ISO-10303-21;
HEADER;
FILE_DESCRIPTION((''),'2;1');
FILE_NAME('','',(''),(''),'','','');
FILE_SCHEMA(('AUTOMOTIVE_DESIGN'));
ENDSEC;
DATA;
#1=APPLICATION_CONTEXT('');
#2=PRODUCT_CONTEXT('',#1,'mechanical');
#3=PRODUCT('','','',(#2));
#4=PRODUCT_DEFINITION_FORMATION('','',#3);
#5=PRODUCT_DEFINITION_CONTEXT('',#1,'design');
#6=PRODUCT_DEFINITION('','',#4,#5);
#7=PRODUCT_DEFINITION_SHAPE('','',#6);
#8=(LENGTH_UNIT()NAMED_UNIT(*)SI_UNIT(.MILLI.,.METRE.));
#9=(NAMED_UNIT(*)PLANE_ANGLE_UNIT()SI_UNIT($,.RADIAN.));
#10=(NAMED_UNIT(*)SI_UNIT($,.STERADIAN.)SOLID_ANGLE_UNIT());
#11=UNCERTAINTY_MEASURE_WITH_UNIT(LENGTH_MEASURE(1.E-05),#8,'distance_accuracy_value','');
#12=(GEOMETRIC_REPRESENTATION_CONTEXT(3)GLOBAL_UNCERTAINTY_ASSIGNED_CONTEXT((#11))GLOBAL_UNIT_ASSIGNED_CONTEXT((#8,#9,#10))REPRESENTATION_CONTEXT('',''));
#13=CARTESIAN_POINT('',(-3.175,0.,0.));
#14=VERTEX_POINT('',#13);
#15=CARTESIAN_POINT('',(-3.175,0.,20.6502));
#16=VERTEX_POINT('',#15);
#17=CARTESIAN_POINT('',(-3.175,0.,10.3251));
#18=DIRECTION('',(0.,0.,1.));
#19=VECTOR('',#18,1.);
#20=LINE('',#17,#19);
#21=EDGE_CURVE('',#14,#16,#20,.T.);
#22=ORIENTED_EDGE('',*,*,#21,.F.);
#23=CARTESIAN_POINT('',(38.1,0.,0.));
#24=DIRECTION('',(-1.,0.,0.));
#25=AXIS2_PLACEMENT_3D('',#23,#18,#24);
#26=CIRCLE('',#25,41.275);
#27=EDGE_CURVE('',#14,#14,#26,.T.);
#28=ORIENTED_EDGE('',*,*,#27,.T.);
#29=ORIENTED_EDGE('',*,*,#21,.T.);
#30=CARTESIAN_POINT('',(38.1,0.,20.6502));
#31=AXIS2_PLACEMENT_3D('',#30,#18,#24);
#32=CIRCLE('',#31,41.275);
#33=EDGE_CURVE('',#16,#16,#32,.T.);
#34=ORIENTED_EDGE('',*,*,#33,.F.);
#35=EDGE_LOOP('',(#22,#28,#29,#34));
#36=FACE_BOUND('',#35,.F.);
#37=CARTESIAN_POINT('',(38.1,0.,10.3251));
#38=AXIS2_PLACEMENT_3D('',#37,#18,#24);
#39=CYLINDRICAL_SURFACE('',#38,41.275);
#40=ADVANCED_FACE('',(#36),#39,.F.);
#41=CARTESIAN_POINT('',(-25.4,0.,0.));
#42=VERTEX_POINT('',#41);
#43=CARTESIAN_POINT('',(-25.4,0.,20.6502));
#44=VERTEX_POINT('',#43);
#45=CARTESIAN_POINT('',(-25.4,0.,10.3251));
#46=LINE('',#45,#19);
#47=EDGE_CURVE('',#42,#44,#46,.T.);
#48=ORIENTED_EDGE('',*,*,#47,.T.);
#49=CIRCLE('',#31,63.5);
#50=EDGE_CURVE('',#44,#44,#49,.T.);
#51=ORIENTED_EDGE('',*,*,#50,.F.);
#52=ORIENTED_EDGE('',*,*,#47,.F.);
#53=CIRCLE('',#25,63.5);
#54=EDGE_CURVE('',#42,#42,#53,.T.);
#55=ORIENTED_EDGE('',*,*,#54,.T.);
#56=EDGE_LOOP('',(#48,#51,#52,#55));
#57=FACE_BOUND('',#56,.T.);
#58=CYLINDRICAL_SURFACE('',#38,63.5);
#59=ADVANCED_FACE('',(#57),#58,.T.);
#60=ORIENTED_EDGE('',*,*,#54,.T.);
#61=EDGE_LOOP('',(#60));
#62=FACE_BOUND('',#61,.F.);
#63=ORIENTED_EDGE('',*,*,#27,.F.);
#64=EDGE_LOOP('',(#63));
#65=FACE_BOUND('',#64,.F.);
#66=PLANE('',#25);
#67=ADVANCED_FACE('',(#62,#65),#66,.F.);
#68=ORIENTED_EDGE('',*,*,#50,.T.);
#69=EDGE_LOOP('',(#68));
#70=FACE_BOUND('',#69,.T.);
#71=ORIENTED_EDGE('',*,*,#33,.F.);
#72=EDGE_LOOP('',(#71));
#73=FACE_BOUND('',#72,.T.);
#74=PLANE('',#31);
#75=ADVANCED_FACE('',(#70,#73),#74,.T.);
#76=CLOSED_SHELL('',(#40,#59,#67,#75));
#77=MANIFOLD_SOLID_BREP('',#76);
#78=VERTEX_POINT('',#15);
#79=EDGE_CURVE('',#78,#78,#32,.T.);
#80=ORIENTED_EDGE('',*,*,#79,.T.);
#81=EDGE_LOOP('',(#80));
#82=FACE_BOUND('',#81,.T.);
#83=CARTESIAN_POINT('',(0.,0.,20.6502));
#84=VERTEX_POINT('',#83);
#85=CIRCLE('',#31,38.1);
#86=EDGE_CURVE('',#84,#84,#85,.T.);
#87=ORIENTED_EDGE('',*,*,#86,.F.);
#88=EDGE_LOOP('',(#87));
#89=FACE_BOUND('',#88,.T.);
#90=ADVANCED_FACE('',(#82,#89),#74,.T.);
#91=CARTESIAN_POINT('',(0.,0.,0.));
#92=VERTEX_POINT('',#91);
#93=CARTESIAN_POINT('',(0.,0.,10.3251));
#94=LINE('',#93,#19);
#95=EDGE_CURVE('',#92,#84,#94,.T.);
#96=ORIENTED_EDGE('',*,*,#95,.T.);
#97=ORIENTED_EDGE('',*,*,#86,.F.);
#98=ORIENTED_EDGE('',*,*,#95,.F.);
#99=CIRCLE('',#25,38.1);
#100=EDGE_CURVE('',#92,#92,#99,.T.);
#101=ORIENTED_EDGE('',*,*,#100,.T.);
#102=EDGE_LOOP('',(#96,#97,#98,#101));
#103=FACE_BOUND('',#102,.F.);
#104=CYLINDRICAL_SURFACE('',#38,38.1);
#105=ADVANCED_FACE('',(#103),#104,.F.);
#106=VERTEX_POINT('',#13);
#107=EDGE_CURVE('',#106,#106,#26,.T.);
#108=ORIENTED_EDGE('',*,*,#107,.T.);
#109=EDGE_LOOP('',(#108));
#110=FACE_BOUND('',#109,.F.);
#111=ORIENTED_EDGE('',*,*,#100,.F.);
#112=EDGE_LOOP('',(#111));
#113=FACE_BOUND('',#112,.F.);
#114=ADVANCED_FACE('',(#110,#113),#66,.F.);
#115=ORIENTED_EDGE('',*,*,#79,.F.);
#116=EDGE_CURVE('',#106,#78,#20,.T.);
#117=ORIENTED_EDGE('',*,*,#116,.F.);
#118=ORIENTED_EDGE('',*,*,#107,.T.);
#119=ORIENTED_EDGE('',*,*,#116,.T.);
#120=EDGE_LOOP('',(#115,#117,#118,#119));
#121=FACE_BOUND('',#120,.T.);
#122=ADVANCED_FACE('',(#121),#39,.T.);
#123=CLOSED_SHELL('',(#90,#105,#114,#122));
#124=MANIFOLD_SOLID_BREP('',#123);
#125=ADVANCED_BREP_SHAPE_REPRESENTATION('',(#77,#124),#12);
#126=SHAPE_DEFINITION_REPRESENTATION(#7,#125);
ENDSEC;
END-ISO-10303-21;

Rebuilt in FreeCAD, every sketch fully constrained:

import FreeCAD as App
import Part
import Sketcher
Q = App.Units.Quantity

doc = App.newDocument("Part")
body = doc.addObject("PartDesign::Body", "Body")

# Sketch on XZ plane
sketch1 = body.newObject("Sketcher::SketchObject", "Sketch")
sketch1.AttachmentSupport = (doc.getObject("XZ_Plane"), [""])
sketch1.MapMode = "FlatFace"
sketch1.addGeometry(Part.LineSegment(App.Vector(-3.175, 20.6502, 0), App.Vector(-3.175, 0, 0)), False)
sketch1.addGeometry(Part.LineSegment(App.Vector(-3.175, 0, 0), App.Vector(0, 0, 0)), False)
sketch1.addGeometry(Part.LineSegment(App.Vector(0, 0, 0), App.Vector(0, 20.6502, 0)), False)
sketch1.addGeometry(Part.LineSegment(App.Vector(0, 20.6502, 0), App.Vector(-3.175, 20.6502, 0)), False)
sketch1.addGeometry(Part.LineSegment(App.Vector(38.1, 0, 0), App.Vector(38.1, 20.6502, 0)), True)  # axis
sketch1.addConstraint(Sketcher.Constraint("Coincident", 0, 2, 1, 1))
sketch1.addConstraint(Sketcher.Constraint("Coincident", 1, 2, 2, 1))
sketch1.addConstraint(Sketcher.Constraint("Coincident", 2, 2, 3, 1))
sketch1.addConstraint(Sketcher.Constraint("Coincident", 3, 2, 0, 1))
sketch1.addConstraint(Sketcher.Constraint("Vertical", 0))
sketch1.addConstraint(Sketcher.Constraint("Horizontal", 1))
sketch1.addConstraint(Sketcher.Constraint("Vertical", 2))
sketch1.addConstraint(Sketcher.Constraint("Horizontal", 3))
sketch1.addConstraint(Sketcher.Constraint("Vertical", 4))
sketch1.addConstraint(Sketcher.Constraint("Coincident", 1, 2, -1, 1))
sketch1.addConstraint(Sketcher.Constraint("PointOnObject", 4, 1, -1))
sketch1.addConstraint(Sketcher.Constraint("Horizontal", 3, 2, 4, 2))
sketch1.addConstraint(Sketcher.Constraint("DistanceX", -1, 1, 4, 1, Q("1.5 in")))
sketch1.addConstraint(Sketcher.Constraint("DistanceX", 1, 1, 1, 2, Q("0.125 in")))
sketch1.addConstraint(Sketcher.Constraint("DistanceY", 0, 2, 0, 1, Q("0.813 in")))
revolution = body.newObject("PartDesign::Revolution", "Revolution")
revolution.Profile = sketch1
revolution.ReferenceAxis = (sketch1, ["Axis0"])
revolution.Angle = 360
body2 = doc.addObject("PartDesign::Body", "Body001")

# Sketch on XZ plane
sketch2 = body2.newObject("Sketcher::SketchObject", "Sketch001")
sketch2.AttachmentSupport = (doc.getObject("XZ_Plane001"), [""])
sketch2.MapMode = "FlatFace"
sketch2.addGeometry(Part.LineSegment(App.Vector(-25.4, 20.6502, 0), App.Vector(-25.4, 0, 0)), False)
sketch2.addGeometry(Part.LineSegment(App.Vector(-25.4, 0, 0), App.Vector(-3.175, 0, 0)), False)
sketch2.addGeometry(Part.LineSegment(App.Vector(-3.175, 0, 0), App.Vector(-3.175, 20.6502, 0)), False)
sketch2.addGeometry(Part.LineSegment(App.Vector(-3.175, 20.6502, 0), App.Vector(-25.4, 20.6502, 0)), False)
sketch2.addGeometry(Part.LineSegment(App.Vector(38.1, 0, 0), App.Vector(38.1, 20.6502, 0)), True)  # axis
sketch2.addConstraint(Sketcher.Constraint("Coincident", 0, 2, 1, 1))
sketch2.addConstraint(Sketcher.Constraint("Coincident", 1, 2, 2, 1))
sketch2.addConstraint(Sketcher.Constraint("Coincident", 2, 2, 3, 1))
sketch2.addConstraint(Sketcher.Constraint("Coincident", 3, 2, 0, 1))
sketch2.addConstraint(Sketcher.Constraint("Vertical", 0))
sketch2.addConstraint(Sketcher.Constraint("Horizontal", 1))
sketch2.addConstraint(Sketcher.Constraint("Vertical", 2))
sketch2.addConstraint(Sketcher.Constraint("Horizontal", 3))
sketch2.addConstraint(Sketcher.Constraint("Vertical", 4))
sketch2.addConstraint(Sketcher.Constraint("PointOnObject", 0, 2, -1))
sketch2.addConstraint(Sketcher.Constraint("PointOnObject", 4, 1, -1))
sketch2.addConstraint(Sketcher.Constraint("Horizontal", 3, 2, 4, 2))
sketch2.addConstraint(Sketcher.Constraint("DistanceX", 0, 2, -1, 1, Q("1 in")))
sketch2.addConstraint(Sketcher.Constraint("DistanceX", -1, 1, 4, 1, Q("1.5 in")))
sketch2.addConstraint(Sketcher.Constraint("DistanceX", 1, 1, 1, 2, Q("0.875 in")))
sketch2.addConstraint(Sketcher.Constraint("DistanceY", 0, 2, 0, 1, Q("0.813 in")))
revolution2 = body2.newObject("PartDesign::Revolution", "Revolution001")
revolution2.Profile = sketch2
revolution2.ReferenceAxis = (sketch2, ["Axis0"])
revolution2.Angle = 360

doc.recompute()
